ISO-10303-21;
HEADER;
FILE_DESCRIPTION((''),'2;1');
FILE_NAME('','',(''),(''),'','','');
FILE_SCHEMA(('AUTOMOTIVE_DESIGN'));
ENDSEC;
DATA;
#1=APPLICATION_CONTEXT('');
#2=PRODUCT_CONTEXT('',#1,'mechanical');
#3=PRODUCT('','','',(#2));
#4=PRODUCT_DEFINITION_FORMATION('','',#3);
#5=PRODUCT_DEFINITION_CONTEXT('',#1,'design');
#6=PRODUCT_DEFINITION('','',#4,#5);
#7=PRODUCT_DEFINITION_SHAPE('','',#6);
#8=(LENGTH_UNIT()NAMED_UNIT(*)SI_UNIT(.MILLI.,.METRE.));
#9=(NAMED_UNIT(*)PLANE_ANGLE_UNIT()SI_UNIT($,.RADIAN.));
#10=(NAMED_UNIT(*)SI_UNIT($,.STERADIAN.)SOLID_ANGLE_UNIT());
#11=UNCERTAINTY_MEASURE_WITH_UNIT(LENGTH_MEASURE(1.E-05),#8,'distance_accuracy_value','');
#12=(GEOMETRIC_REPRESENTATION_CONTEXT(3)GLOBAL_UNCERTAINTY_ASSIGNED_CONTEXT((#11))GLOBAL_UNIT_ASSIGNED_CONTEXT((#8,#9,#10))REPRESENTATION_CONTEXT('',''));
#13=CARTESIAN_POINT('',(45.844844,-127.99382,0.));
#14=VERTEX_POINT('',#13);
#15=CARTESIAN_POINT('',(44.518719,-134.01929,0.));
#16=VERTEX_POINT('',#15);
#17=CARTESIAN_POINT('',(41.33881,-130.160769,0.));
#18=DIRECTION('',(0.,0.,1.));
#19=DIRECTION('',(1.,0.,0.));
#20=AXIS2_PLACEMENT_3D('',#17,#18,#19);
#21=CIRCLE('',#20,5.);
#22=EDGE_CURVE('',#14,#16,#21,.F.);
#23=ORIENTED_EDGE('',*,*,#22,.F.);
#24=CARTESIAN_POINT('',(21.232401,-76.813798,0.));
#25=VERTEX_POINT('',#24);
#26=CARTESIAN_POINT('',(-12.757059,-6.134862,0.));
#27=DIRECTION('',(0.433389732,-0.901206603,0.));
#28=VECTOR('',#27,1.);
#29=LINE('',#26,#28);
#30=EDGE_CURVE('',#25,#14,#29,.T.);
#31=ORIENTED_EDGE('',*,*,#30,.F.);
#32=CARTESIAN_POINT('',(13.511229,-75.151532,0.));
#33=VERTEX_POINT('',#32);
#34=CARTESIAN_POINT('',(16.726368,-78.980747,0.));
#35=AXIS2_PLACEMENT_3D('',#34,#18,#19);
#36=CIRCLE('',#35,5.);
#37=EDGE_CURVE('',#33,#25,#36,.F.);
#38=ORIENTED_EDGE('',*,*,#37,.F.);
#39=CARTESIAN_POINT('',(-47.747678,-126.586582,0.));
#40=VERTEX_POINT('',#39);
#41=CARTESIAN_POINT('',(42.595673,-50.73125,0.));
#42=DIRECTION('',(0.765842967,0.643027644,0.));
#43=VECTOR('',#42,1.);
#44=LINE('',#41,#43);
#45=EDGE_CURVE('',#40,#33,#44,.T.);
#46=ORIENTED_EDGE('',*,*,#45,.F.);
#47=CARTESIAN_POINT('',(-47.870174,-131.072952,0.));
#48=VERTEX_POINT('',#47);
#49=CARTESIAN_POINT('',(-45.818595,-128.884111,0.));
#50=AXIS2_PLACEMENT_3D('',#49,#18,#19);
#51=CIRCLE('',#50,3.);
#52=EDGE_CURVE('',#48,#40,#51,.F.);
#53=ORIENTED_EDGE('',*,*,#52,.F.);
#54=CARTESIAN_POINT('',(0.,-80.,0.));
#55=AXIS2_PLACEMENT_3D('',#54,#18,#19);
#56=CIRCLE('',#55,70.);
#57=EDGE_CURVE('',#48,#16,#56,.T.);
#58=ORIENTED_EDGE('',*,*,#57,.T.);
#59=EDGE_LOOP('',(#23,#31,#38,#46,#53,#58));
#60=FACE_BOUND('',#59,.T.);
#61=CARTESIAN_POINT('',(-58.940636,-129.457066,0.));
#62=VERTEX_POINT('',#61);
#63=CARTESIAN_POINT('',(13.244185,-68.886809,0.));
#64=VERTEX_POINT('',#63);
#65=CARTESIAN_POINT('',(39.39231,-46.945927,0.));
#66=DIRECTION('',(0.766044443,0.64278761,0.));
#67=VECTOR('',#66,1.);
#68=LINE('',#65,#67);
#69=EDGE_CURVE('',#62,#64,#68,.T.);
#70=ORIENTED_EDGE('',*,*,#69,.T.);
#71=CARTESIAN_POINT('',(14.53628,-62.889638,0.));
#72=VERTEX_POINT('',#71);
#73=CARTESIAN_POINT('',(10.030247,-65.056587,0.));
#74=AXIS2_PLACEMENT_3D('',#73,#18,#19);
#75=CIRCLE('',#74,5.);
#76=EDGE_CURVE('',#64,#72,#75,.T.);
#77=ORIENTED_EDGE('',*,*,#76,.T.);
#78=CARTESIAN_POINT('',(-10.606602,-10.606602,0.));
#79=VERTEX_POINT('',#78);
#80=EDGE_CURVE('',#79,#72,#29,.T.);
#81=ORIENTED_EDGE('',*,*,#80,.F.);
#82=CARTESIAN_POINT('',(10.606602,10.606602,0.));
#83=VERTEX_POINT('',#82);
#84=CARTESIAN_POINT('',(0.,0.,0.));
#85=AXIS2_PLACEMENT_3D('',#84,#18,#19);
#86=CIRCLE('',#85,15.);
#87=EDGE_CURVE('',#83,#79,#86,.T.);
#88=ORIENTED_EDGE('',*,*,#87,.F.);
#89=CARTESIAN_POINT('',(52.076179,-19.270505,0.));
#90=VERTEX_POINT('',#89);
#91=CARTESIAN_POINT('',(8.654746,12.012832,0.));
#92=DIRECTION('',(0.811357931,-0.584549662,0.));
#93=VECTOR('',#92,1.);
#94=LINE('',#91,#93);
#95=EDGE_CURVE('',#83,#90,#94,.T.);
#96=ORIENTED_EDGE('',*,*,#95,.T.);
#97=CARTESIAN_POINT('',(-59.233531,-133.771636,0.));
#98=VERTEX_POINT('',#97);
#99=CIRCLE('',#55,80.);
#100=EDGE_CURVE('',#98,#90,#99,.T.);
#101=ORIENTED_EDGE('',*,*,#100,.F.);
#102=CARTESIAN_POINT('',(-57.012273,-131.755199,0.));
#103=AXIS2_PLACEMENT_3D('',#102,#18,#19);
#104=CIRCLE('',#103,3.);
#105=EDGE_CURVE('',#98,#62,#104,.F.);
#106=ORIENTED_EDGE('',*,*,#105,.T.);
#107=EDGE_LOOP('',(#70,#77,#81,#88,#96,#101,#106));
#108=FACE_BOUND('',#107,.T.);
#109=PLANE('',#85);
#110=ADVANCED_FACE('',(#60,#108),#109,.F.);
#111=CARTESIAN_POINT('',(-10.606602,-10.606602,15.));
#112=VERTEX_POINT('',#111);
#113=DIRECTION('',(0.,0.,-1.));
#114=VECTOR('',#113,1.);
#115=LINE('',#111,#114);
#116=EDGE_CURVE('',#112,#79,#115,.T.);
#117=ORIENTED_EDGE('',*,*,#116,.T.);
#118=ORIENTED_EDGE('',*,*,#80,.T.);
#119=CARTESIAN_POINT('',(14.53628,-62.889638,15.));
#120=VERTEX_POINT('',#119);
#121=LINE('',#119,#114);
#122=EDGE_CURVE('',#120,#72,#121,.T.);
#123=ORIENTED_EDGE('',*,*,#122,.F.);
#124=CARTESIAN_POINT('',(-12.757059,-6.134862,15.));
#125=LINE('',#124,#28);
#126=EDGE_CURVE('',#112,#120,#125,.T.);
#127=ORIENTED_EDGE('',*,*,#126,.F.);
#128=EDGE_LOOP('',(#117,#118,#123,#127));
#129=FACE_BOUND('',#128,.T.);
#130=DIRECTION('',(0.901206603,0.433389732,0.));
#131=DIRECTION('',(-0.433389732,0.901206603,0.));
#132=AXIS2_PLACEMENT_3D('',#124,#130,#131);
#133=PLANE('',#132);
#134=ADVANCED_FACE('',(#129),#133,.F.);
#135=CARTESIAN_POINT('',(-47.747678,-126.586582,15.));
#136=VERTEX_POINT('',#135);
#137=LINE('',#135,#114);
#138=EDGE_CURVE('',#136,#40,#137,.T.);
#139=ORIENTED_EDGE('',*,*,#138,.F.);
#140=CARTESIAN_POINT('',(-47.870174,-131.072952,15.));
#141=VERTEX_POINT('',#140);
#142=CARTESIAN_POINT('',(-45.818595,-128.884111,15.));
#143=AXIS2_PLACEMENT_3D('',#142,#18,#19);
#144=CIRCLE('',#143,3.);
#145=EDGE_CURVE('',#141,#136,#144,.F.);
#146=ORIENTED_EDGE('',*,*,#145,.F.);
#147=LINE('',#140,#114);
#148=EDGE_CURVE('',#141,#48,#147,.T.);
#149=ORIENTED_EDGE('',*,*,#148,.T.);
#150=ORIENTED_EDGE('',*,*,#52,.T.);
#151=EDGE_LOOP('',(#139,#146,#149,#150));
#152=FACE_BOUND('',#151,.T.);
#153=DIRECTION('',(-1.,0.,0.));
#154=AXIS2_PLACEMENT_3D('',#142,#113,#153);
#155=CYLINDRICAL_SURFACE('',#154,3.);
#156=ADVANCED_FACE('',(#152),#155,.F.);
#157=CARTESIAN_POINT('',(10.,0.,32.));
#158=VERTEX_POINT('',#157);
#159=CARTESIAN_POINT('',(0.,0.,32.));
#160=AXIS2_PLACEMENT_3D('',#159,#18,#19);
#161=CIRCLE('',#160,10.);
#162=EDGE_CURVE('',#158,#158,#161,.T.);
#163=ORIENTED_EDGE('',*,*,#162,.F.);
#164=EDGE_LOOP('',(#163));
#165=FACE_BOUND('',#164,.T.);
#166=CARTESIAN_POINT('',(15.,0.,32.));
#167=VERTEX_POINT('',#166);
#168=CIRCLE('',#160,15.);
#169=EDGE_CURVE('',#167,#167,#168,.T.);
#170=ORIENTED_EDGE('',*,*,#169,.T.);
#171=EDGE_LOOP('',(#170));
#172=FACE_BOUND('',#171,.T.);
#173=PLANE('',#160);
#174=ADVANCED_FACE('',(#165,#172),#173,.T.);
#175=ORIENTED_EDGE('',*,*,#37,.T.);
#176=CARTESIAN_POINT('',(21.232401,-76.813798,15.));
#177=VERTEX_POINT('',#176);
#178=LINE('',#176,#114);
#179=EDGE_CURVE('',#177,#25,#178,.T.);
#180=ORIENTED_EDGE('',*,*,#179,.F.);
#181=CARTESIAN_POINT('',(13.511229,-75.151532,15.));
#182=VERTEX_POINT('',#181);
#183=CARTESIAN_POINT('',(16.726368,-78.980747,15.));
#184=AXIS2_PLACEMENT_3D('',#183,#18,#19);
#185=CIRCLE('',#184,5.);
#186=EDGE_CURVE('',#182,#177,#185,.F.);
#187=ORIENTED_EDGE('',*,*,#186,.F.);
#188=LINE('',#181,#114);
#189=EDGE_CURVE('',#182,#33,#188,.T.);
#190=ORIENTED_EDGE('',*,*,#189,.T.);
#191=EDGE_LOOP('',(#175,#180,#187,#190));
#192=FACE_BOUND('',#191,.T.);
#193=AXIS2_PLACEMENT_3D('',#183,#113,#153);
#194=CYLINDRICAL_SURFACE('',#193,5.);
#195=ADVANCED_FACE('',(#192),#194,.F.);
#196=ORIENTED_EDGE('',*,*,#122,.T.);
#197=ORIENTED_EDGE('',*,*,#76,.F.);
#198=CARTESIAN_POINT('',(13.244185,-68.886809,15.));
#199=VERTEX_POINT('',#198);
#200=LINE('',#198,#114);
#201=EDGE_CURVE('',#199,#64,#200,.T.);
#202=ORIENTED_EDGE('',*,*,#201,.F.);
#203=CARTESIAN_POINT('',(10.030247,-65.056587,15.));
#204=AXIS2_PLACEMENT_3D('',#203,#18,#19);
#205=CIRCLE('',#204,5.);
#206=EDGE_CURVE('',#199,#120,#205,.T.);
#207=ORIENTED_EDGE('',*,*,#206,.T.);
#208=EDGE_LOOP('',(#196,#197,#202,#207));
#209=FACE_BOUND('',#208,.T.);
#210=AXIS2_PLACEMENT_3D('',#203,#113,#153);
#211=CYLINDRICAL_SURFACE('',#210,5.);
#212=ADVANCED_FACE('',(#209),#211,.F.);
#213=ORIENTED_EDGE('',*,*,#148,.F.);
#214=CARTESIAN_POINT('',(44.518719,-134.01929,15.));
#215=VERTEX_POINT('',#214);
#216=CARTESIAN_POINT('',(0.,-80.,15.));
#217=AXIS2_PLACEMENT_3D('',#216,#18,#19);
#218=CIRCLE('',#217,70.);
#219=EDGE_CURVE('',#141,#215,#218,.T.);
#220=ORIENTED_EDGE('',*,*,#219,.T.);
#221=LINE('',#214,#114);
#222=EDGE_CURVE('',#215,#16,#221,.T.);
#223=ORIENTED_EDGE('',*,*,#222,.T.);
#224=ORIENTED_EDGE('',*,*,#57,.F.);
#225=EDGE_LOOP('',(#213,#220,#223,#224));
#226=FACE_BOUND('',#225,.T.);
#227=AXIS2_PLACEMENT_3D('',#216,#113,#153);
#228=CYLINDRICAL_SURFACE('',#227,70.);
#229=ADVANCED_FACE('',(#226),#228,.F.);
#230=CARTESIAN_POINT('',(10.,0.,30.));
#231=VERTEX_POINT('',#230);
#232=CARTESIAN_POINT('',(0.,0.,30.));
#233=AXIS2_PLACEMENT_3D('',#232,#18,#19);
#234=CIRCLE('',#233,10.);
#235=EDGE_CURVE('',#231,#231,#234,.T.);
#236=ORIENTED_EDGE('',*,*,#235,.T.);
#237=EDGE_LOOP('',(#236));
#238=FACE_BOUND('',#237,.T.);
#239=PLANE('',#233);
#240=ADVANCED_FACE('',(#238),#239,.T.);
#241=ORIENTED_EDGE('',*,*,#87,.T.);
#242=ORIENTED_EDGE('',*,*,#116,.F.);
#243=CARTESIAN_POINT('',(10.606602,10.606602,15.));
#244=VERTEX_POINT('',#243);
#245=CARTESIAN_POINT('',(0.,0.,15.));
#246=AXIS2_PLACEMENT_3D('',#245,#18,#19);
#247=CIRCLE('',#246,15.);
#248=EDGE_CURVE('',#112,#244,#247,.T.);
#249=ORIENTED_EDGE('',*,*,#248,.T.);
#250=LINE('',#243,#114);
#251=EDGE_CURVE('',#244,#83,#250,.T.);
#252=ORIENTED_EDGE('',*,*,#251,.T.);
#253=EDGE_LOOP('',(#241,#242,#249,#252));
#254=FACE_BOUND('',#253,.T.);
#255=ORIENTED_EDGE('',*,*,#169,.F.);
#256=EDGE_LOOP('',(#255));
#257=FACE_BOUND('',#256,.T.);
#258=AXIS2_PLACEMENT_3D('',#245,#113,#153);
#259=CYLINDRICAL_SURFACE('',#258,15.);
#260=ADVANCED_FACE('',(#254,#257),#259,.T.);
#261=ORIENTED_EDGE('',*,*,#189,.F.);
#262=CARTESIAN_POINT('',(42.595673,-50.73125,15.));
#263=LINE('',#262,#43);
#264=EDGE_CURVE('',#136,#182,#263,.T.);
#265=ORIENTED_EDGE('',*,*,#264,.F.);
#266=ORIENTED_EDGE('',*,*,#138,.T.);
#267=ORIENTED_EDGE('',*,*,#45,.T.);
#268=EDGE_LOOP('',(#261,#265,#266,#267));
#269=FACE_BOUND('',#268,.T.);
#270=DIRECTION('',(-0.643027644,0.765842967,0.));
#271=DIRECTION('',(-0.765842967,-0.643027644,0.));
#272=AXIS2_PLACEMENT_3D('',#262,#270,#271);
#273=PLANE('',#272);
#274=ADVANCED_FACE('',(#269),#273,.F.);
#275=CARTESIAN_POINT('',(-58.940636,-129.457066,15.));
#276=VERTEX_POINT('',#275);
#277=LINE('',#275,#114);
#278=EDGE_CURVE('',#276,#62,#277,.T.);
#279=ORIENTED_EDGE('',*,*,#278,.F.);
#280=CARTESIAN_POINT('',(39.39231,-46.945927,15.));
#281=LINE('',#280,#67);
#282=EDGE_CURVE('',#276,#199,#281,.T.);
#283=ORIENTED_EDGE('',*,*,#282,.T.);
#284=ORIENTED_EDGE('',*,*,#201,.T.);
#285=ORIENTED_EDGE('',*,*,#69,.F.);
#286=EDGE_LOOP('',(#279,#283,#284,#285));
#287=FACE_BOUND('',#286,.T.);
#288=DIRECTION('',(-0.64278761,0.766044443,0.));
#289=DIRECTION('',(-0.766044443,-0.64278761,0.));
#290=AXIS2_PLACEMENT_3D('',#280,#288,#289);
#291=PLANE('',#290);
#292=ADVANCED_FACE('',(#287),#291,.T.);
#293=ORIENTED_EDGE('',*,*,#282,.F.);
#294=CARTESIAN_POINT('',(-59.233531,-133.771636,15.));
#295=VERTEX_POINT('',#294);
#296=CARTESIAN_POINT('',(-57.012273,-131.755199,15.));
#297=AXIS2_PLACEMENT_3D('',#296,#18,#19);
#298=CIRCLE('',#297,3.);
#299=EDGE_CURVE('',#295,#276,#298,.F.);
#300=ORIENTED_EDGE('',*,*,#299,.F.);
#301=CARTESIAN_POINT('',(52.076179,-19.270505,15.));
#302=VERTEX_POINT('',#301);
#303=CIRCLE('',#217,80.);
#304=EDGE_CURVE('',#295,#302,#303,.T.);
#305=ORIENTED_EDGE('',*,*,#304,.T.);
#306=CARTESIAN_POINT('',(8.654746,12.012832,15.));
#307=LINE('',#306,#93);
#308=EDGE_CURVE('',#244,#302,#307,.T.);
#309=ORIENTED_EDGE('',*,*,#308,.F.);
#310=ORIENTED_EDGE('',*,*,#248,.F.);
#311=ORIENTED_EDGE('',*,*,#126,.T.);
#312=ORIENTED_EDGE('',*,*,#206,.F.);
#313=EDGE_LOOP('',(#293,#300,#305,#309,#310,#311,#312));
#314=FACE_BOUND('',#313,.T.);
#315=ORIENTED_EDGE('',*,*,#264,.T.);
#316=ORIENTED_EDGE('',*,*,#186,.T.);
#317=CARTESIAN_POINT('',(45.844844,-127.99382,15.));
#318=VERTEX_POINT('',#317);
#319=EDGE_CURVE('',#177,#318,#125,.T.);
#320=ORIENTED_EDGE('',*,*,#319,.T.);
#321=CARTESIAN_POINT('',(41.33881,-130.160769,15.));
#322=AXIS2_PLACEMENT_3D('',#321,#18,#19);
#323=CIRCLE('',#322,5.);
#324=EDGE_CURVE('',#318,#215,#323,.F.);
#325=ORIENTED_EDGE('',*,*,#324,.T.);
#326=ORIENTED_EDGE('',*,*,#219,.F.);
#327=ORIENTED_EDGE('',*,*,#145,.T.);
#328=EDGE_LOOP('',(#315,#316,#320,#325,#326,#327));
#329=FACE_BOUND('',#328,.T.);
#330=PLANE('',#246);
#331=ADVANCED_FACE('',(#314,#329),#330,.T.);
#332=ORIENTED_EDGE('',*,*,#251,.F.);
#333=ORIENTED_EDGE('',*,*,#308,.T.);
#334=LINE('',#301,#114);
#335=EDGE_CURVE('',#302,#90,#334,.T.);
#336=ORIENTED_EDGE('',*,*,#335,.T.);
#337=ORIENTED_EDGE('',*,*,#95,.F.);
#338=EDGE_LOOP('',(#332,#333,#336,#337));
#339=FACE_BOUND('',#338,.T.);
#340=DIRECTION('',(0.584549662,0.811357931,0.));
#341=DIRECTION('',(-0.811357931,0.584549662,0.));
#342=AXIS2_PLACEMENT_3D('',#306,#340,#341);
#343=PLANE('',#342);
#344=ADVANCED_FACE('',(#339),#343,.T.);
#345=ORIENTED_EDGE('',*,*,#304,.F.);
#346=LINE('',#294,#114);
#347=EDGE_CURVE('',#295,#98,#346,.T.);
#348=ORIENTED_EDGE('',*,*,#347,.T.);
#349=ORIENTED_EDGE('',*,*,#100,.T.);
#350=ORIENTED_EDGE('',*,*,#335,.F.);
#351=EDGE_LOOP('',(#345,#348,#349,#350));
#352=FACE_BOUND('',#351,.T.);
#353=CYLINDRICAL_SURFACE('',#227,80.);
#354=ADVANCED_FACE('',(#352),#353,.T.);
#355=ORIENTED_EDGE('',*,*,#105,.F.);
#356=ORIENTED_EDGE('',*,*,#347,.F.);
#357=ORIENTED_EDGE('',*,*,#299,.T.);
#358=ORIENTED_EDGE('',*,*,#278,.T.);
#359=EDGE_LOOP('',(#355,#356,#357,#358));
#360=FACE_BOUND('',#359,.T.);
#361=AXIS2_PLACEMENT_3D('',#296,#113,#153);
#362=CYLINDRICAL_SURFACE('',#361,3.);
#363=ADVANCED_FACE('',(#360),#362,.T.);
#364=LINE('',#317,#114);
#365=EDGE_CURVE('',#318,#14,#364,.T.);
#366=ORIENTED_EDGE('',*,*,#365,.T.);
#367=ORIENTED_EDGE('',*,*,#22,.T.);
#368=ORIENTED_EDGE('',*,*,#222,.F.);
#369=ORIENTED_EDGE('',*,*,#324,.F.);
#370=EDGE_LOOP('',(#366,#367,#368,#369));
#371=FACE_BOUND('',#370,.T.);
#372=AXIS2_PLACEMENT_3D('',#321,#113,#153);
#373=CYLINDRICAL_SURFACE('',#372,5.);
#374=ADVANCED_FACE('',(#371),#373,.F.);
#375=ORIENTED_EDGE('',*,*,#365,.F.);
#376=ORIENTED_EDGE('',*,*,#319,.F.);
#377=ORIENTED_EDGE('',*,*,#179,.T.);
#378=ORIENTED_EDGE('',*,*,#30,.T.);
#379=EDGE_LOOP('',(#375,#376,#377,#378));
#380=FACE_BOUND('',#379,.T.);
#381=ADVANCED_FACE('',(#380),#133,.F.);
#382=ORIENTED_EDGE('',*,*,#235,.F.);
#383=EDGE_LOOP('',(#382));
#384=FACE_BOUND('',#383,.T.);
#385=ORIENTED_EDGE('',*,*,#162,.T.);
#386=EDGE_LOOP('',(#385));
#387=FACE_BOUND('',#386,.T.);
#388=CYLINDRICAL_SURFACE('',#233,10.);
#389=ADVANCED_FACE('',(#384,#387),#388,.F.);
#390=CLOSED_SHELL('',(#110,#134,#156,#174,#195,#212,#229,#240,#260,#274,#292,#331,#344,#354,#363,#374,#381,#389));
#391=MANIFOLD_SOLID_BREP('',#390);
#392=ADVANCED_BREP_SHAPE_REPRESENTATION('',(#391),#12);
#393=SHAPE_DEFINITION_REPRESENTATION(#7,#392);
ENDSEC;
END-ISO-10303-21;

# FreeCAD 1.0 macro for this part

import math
import FreeCAD as App
import Part
import Sketcher
from FreeCAD import Vector
Q = App.Units.Quantity

doc = App.newDocument("Part")
params = doc.addObject("Spreadsheet::Sheet", "Params")
for row, (alias, value) in enumerate([
    ("sketch1_radius", "3 mm"),
    ("sketch1_radius2", "80 mm"),
    ("sketch1_radius3", "15 mm"),
    ("sketch1_radius4", "5 mm"),
    ("sketch1_radius5", "70 mm"),
    ("pad1_length", "15 mm"),
    ("sketch2_diameter", "30 mm"),
    ("pad2_length", "17 mm"),
    ("sketch3_diameter", "20 mm"),
    ("pocket1_length", "2 mm"),
], start=1):
    params.set(f"A{row}", alias)
    params.set(f"B{row}", "=" + value)
    params.setAlias(f"B{row}", alias)

body = doc.addObject("PartDesign::Body", "Body")

sketch1 = doc.addObject("Sketcher::SketchObject", "Sketch")
body.addObject(sketch1)
sketch1.AttachmentSupport = (doc.XY_Plane, [""])
sketch1.MapMode = "FlatFace"
sketch1.addGeometry([
    Part.LineSegment(Vector(-53.6, -125, 0), Vector(-58.9, -129.5, 0)),
    Part.ArcOfCircle(Part.Circle(Vector(-57, -131.8, 0), Vector(0, 0, 1), 3), math.radians(130), math.radians(222)),
    Part.ArcOfCircle(Part.Circle(Vector(0, -80, 0), Vector(0, 0, 1), 80), math.radians(-138), math.radians(49)),
    Part.LineSegment(Vector(52.1, -19.3, 0), Vector(10.6, 10.6, 0)),
    Part.ArcOfCircle(Part.Circle(Vector(0, 0, 0), Vector(0, 0, 1), 15), math.radians(45), math.radians(225)),
    Part.LineSegment(Vector(-10.6, -10.6, 0), Vector(14.5, -62.9, 0)),
    Part.ArcOfCircle(Part.Circle(Vector(10, -65.1, 0), Vector(0, 0, 1), 5), math.radians(-50), math.radians(26)),
    Part.LineSegment(Vector(13.2, -68.9, 0), Vector(-53.6, -125, 0)),
    Part.ArcOfCircle(Part.Circle(Vector(16.7, -79, 0), Vector(0, 0, 1), 5), math.radians(26), math.radians(130)),
    Part.LineSegment(Vector(21.2, -76.8, 0), Vector(45.8, -128, 0)),
    Part.ArcOfCircle(Part.Circle(Vector(41.3, -130.2, 0), Vector(0, 0, 1), 5), math.radians(-51), math.radians(26)),
    Part.ArcOfCircle(Part.Circle(Vector(0, -80, 0), Vector(0, 0, 1), 70), math.radians(-133), math.radians(-51)),
    Part.ArcOfCircle(Part.Circle(Vector(-45.8, -128.9, 0), Vector(0, 0, 1), 3), math.radians(130), math.radians(227)),
    Part.LineSegment(Vector(-47.7, -126.6, 0), Vector(13.5, -75.2, 0)),
], False)
sketch1.addConstraint([
    Sketcher.Constraint("Tangent", 0, 2, 1, 1),
    Sketcher.Constraint("Tangent", 1, 2, 2, 1),
    Sketcher.Constraint("Coincident", 2, 2, 3, 1),
    Sketcher.Constraint("Coincident", 3, 2, 4, 1),
    Sketcher.Constraint("Coincident", 4, 2, 5, 1),
    Sketcher.Constraint("Tangent", 5, 2, 6, 2),
    Sketcher.Constraint("Tangent", 6, 1, 7, 1),
    Sketcher.Constraint("Coincident", 7, 2, 0, 1),
    Sketcher.Constraint("Tangent", 8, 1, 9, 1),
    Sketcher.Constraint("Tangent", 9, 2, 10, 2),
    Sketcher.Constraint("Tangent", 10, 1, 11, 2),
    Sketcher.Constraint("Tangent", 11, 1, 12, 2),
    Sketcher.Constraint("Tangent", 12, 1, 13, 1),
    Sketcher.Constraint("Tangent", 13, 2, 8, 2),
    Sketcher.Constraint("Coincident", 4, 3, -1, 1),
    Sketcher.Constraint("Coincident", 11, 3, 2, 3),
    Sketcher.Constraint("Equal", 6, 8),
    Sketcher.Constraint("Equal", 8, 10),
    Sketcher.Constraint("Equal", 1, 12),
    Sketcher.Constraint("PointOnObject", 2, 3, -2),
    Sketcher.Constraint("Parallel", 0, 7),
    Sketcher.Constraint("Parallel", 5, 9),
    Sketcher.Constraint("Radius", 1, 3.0),
    Sketcher.Constraint("Radius", 2, 80.0),
    Sketcher.Constraint("Radius", 4, 15.0),
    Sketcher.Constraint("Radius", 6, 5.0),
    Sketcher.Constraint("Radius", 11, 70.0),
    Sketcher.Constraint("Angle", 0, Q("-140 deg")),
    Sketcher.Constraint("DistanceY", 2, 3, -1, 1, 80.0),
    Sketcher.Constraint("DistanceY", 1, 3, -1, 1, 131.755199),
    Sketcher.Constraint("DistanceX", -1, 1, 3, 2, 10.606602),
    Sketcher.Constraint("DistanceX", 4, 2, -1, 1, 10.606602),
    Sketcher.Constraint("DistanceX", -1, 1, 8, 1, 21.232401),
    Sketcher.Constraint("DistanceY", 8, 1, -1, 1, 76.813798),
    Sketcher.Constraint("DistanceX", 5, 2, 2, 2, 37.539899),
    Sketcher.Constraint("DistanceX", 1, 3, 11, 1, 9.142099),
    Sketcher.Constraint("DistanceX", -1, 1, 10, 3, 41.33881),
    Sketcher.Constraint("DistanceX", 7, 2, -1, 1, 53.623111),
])
sketch1.setExpression("Constraints[22]", "Params.sketch1_radius")
sketch1.setExpression("Constraints[23]", "Params.sketch1_radius2")
sketch1.setExpression("Constraints[24]", "Params.sketch1_radius3")
sketch1.setExpression("Constraints[25]", "Params.sketch1_radius4")
sketch1.setExpression("Constraints[26]", "Params.sketch1_radius5")
pad1 = doc.addObject("PartDesign::Pad", "Pad")
body.addObject(pad1)
pad1.Profile = sketch1
pad1.setExpression("Length", "Params.pad1_length")

sketch2 = doc.addObject("Sketcher::SketchObject", "Sketch001")
body.addObject(sketch2)
sketch2.AttachmentSupport = (doc.XY_Plane, [""])
sketch2.MapMode = "FlatFace"
sketch2.AttachmentOffset = App.Placement(Vector(0, 0, 15), App.Rotation())
sketch2.addGeometry(Part.Circle(Vector(0, 0, 0), Vector(0, 0, 1), 15), False)
sketch2.addConstraint([
    Sketcher.Constraint("Coincident", 0, 3, -1, 1),
    Sketcher.Constraint("Diameter", 0, 30.0),
])
sketch2.setExpression("Constraints[1]", "Params.sketch2_diameter")
pad2 = doc.addObject("PartDesign::Pad", "Pad001")
body.addObject(pad2)
pad2.Profile = sketch2
pad2.setExpression("Length", "Params.pad2_length")

sketch3 = doc.addObject("Sketcher::SketchObject", "Sketch002")
body.addObject(sketch3)
sketch3.AttachmentSupport = (doc.XY_Plane, [""])
sketch3.MapMode = "FlatFace"
sketch3.AttachmentOffset = App.Placement(Vector(0, 0, 32), App.Rotation())
sketch3.addGeometry(Part.Circle(Vector(0, 0, 0), Vector(0, 0, 1), 10), False)
sketch3.addConstraint([
    Sketcher.Constraint("Coincident", 0, 3, -1, 1),
    Sketcher.Constraint("Diameter", 0, 20.0),
])
sketch3.setExpression("Constraints[1]", "Params.sketch3_diameter")
pocket1 = doc.addObject("PartDesign::Pocket", "Pocket")
body.addObject(pocket1)
pocket1.Profile = sketch3
pocket1.setExpression("Length", "Params.pocket1_length")

doc.recompute()
